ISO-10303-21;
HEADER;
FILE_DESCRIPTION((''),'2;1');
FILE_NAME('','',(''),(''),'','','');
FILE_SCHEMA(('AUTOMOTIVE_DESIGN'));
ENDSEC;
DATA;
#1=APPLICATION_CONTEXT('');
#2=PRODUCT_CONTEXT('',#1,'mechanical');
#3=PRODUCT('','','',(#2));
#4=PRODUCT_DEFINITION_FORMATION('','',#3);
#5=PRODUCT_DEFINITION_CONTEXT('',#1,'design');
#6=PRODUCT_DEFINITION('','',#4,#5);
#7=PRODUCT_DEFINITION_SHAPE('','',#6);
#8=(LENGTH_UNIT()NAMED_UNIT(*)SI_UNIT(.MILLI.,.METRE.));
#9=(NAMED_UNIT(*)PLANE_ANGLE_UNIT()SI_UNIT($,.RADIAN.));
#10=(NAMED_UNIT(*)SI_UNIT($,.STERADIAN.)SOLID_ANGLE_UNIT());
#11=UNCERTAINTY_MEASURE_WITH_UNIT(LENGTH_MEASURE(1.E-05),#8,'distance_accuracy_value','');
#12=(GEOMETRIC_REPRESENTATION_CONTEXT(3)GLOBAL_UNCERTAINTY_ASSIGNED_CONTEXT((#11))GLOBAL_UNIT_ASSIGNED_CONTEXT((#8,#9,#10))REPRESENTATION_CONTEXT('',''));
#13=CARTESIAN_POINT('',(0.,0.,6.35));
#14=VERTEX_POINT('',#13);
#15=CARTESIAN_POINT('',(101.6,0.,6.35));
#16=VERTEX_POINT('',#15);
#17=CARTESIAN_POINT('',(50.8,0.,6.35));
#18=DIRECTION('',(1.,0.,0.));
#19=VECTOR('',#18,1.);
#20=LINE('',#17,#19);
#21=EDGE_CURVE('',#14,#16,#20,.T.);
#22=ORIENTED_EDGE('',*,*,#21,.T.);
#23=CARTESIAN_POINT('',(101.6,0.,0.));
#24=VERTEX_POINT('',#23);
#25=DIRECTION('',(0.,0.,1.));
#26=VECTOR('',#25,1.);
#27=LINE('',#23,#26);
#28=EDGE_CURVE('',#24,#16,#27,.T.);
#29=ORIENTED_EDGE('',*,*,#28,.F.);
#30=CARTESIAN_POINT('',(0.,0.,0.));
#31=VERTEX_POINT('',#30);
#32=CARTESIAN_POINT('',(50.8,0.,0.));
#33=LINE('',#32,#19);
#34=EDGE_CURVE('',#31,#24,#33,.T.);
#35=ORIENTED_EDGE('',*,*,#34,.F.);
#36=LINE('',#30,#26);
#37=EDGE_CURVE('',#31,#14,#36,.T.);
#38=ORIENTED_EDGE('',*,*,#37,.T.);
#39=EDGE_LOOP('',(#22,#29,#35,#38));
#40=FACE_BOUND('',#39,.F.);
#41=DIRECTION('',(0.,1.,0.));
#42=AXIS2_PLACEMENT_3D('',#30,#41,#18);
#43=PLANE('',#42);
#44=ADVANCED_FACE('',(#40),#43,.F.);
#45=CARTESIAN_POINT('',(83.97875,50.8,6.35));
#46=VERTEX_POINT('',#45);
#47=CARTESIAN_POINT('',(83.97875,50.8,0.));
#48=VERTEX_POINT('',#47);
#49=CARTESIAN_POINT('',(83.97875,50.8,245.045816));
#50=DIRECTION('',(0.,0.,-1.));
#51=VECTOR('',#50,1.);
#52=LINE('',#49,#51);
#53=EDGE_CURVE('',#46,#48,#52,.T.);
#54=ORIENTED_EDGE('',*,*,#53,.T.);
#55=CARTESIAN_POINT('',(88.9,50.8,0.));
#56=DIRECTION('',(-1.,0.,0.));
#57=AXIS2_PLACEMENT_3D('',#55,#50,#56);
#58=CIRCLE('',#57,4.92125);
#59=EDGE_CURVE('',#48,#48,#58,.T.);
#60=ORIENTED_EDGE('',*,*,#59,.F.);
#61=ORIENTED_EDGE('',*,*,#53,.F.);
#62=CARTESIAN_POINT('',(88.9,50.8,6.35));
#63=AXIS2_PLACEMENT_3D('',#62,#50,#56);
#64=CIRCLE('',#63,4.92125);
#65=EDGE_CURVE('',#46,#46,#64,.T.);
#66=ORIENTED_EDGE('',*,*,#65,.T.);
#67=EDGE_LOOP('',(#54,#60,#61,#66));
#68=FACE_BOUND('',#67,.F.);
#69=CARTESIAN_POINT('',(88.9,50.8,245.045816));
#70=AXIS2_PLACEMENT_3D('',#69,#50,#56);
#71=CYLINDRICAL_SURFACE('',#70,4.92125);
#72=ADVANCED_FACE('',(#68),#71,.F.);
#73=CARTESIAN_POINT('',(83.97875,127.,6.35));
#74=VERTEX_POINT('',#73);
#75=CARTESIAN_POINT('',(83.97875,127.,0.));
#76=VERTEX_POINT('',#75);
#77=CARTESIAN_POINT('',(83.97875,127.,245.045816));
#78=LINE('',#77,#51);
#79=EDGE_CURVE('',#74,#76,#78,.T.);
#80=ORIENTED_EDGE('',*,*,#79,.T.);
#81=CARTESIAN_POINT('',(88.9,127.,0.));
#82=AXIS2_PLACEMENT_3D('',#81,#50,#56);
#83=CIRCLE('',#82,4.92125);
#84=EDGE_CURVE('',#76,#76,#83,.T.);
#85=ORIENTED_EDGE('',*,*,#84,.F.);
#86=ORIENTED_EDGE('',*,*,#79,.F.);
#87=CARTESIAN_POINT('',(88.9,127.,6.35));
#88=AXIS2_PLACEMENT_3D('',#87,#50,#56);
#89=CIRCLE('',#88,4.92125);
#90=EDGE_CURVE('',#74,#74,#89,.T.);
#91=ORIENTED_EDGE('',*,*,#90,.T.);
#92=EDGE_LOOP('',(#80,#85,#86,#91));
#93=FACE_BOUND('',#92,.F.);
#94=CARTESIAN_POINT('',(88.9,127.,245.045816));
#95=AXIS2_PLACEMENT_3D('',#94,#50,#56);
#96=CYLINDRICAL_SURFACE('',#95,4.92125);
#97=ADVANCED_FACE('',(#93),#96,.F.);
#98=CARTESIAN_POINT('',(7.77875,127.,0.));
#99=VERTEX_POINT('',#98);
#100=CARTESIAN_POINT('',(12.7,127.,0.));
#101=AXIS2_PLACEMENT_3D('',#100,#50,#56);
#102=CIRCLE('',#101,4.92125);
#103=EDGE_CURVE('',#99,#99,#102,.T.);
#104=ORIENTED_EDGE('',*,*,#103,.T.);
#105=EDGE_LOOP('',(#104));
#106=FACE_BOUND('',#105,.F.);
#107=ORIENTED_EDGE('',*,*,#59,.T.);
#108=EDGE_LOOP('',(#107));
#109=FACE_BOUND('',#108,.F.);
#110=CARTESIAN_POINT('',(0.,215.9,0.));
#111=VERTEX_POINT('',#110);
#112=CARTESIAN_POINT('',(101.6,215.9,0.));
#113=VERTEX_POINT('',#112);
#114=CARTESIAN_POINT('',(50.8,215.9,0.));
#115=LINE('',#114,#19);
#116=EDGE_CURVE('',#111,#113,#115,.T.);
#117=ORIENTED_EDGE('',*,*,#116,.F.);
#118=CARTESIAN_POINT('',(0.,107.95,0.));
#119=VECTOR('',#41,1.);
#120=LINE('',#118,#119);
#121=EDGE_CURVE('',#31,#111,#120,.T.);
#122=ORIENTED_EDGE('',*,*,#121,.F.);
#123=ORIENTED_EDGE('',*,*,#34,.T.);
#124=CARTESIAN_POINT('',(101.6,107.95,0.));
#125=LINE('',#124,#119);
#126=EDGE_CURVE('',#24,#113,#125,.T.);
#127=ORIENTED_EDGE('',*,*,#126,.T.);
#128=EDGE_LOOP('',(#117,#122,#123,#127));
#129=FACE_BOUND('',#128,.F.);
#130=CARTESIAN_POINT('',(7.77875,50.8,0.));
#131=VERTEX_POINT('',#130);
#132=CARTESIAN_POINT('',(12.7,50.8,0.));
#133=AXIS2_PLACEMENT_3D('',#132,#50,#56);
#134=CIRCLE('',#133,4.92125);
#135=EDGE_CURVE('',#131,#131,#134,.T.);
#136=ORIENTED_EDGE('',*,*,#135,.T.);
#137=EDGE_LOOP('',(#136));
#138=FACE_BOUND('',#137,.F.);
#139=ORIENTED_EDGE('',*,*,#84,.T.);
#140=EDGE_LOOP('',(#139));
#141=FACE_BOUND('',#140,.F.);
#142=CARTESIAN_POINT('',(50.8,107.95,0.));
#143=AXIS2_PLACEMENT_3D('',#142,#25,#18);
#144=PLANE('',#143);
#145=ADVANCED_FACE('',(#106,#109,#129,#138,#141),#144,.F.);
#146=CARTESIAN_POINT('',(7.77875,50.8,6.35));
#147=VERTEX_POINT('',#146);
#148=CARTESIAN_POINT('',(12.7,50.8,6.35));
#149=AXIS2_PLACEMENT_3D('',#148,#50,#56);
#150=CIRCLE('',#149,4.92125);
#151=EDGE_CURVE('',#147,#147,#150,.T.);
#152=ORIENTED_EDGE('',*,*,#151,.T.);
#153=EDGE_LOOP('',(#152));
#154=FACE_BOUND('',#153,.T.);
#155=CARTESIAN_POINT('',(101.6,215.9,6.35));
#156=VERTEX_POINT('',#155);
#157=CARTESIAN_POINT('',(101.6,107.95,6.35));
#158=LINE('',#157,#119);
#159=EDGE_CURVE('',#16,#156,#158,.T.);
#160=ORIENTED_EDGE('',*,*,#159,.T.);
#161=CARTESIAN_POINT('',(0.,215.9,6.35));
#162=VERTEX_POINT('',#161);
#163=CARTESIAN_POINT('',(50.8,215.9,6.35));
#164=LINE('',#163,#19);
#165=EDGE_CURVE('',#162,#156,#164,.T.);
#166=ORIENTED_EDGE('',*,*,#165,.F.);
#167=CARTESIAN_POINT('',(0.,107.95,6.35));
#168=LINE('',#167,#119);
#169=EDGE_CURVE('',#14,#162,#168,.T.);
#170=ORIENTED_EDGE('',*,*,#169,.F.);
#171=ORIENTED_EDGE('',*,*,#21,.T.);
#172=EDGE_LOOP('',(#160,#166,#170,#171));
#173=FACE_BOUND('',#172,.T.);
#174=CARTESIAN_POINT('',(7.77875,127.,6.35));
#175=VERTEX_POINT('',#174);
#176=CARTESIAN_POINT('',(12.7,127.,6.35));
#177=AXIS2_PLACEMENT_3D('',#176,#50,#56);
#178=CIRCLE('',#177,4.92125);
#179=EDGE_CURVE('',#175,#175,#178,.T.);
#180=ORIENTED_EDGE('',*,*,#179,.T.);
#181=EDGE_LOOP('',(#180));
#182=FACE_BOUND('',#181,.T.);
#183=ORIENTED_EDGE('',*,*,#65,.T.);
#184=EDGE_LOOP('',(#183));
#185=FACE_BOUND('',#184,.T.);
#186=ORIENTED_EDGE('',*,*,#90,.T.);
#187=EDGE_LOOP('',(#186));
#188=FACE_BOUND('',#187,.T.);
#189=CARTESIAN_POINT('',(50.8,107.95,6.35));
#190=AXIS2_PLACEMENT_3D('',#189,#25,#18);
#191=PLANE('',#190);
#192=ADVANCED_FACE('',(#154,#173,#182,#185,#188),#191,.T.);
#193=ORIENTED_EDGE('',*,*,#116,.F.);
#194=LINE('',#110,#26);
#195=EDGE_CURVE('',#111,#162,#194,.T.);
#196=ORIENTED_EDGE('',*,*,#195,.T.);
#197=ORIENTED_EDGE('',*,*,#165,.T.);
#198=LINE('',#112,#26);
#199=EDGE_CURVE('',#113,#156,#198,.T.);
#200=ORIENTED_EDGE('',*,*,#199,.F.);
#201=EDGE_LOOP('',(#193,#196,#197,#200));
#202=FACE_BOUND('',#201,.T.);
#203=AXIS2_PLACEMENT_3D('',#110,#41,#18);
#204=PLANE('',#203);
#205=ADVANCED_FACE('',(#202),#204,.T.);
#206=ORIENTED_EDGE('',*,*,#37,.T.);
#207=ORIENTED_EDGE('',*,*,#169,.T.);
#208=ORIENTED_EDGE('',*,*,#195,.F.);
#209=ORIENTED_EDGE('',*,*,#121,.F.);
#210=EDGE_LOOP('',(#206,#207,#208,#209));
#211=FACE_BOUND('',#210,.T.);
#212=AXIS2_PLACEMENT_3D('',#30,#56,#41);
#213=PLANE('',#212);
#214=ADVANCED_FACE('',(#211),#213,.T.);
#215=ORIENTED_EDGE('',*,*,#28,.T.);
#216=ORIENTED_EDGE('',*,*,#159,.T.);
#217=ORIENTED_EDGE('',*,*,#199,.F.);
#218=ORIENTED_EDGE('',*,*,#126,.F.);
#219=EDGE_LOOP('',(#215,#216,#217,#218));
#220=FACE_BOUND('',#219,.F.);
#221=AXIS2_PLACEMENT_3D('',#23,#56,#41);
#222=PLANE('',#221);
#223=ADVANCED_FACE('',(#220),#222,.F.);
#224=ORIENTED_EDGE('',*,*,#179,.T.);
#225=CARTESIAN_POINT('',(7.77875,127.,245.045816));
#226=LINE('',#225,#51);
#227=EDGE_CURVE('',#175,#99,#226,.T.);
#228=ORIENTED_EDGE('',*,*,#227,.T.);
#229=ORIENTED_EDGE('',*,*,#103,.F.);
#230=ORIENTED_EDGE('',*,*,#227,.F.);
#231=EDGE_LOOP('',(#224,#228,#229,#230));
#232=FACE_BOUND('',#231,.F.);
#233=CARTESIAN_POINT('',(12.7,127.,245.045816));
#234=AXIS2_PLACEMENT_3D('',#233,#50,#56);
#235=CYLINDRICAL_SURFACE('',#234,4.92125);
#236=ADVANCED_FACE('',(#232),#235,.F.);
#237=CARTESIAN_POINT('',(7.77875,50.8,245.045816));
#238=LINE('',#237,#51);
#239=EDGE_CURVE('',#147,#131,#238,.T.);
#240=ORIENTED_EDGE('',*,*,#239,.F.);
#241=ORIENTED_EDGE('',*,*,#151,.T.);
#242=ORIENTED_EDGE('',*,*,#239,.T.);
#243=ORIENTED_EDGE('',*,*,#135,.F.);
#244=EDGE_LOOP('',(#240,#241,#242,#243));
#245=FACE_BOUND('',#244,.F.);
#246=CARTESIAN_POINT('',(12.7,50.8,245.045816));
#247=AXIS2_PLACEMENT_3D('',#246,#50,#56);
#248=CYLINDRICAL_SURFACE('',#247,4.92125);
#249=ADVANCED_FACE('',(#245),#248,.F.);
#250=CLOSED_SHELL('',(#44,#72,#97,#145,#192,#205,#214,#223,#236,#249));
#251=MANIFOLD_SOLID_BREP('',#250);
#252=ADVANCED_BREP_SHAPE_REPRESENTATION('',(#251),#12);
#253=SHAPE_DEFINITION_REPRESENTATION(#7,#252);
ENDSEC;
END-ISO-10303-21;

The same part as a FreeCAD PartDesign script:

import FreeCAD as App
import Part
import Sketcher
from FreeCAD import Vector
Q = App.Units.Quantity

doc = App.newDocument("Part")
params = doc.addObject("Spreadsheet::Sheet", "Params")
for row, (alias, value) in enumerate([
    ("sketch1_width", "4 in"),
    ("sketch1_height", "8.5 in"),
    ("pad1_length", "0.25 in"),
    ("hole_diameter", "0.3875 in"),
], start=1):
    params.set(f"A{row}", alias)
    params.set(f"B{row}", "=" + value)
    params.setAlias(f"B{row}", alias)

body = doc.addObject("PartDesign::Body", "Body")

sketch1 = body.newObject("Sketcher::SketchObject", "Sketch")
sketch1.AttachmentSupport = (doc.getObject("XY_Plane"), [""])
sketch1.MapMode = "FlatFace"
sketch1.addGeometry(Part.LineSegment(Vector(0, 216, 0), Vector(0, 0, 0)), False)
sketch1.addGeometry(Part.LineSegment(Vector(0, 0, 0), Vector(102, 0, 0)), False)
sketch1.addGeometry(Part.LineSegment(Vector(102, 0, 0), Vector(102, 216, 0)), False)
sketch1.addGeometry(Part.LineSegment(Vector(102, 216, 0), Vector(0, 216, 0)), False)
sketch1.addConstraint(Sketcher.Constraint("Coincident", 0, 2, 1, 1))
sketch1.addConstraint(Sketcher.Constraint("Coincident", 1, 2, 2, 1))
sketch1.addConstraint(Sketcher.Constraint("Coincident", 2, 2, 3, 1))
sketch1.addConstraint(Sketcher.Constraint("Coincident", 3, 2, 0, 1))
sketch1.addConstraint(Sketcher.Constraint("Vertical", 0))
sketch1.addConstraint(Sketcher.Constraint("Horizontal", 1))
sketch1.addConstraint(Sketcher.Constraint("Vertical", 2))
sketch1.addConstraint(Sketcher.Constraint("Horizontal", 3))
sketch1.addConstraint(Sketcher.Constraint("Coincident", 0, 2, -1, 1))
sketch1.addConstraint(Sketcher.Constraint("DistanceX", 1, 1, 1, 2, Q("4 in")))
sketch1.addConstraint(Sketcher.Constraint("DistanceY", 0, 2, 0, 1, Q("8.5 in")))
sketch1.setExpression("Constraints[9]", "Params.sketch1_width")
sketch1.setExpression("Constraints[10]", "Params.sketch1_height")
pad1 = body.newObject("PartDesign::Pad", "Pad")
pad1.Profile = sketch1
pad1.setExpression("Length", "Params.pad1_length")

sketch2 = body.newObject("Sketcher::SketchObject", "Sketch001")
sketch2.AttachmentSupport = (doc.getObject("XY_Plane"), [""])
sketch2.MapMode = "FlatFace"
sketch2.AttachmentOffset = App.Placement(Vector(0, 0, 0.25 * 25.4), App.Rotation())
sketch2.addGeometry(Part.Circle(Vector(12.7, 127, 0), Vector(0, 0, 1), 4.9), False)
sketch2.addGeometry(Part.Circle(Vector(88.9, 127, 0), Vector(0, 0, 1), 4.9), False)
sketch2.addGeometry(Part.Circle(Vector(88.9, 50.8, 0), Vector(0, 0, 1), 4.9), False)
sketch2.addGeometry(Part.Circle(Vector(12.7, 50.8, 0), Vector(0, 0, 1), 4.9), False)
sketch2.addConstraint(Sketcher.Constraint("Equal", 0, 1))
sketch2.addConstraint(Sketcher.Constraint("Equal", 1, 2))
sketch2.addConstraint(Sketcher.Constraint("Equal", 2, 3))
sketch2.addConstraint(Sketcher.Constraint("Horizontal", 0, 3, 1, 3))
sketch2.addConstraint(Sketcher.Constraint("Horizontal", 2, 3, 3, 3))
sketch2.addConstraint(Sketcher.Constraint("Vertical", 1, 3, 2, 3))
sketch2.addConstraint(Sketcher.Constraint("Vertical", 0, 3, 3, 3))
sketch2.addConstraint(Sketcher.Constraint("DistanceY", -1, 1, 0, 3, Q("5 in")))
sketch2.addConstraint(Sketcher.Constraint("DistanceY", -1, 1, 2, 3, Q("2 in")))
sketch2.addConstraint(Sketcher.Constraint("DistanceX", 0, 3, 1, 3, Q("3 in")))
sketch2.addConstraint(Sketcher.Constraint("Diameter", 0, Q("0.3875 in")))
sketch2.addConstraint(Sketcher.Constraint("DistanceX", -1, 1, 0, 3, Q("0.5 in")))
doc.recompute()
hole = body.newObject("PartDesign::Hole", "Hole")
hole.Profile = sketch2
hole.ThreadType = "None"
hole.setExpression("Diameter", "Params.hole_diameter")
hole.DepthType = "ThroughAll"

doc.recompute()
